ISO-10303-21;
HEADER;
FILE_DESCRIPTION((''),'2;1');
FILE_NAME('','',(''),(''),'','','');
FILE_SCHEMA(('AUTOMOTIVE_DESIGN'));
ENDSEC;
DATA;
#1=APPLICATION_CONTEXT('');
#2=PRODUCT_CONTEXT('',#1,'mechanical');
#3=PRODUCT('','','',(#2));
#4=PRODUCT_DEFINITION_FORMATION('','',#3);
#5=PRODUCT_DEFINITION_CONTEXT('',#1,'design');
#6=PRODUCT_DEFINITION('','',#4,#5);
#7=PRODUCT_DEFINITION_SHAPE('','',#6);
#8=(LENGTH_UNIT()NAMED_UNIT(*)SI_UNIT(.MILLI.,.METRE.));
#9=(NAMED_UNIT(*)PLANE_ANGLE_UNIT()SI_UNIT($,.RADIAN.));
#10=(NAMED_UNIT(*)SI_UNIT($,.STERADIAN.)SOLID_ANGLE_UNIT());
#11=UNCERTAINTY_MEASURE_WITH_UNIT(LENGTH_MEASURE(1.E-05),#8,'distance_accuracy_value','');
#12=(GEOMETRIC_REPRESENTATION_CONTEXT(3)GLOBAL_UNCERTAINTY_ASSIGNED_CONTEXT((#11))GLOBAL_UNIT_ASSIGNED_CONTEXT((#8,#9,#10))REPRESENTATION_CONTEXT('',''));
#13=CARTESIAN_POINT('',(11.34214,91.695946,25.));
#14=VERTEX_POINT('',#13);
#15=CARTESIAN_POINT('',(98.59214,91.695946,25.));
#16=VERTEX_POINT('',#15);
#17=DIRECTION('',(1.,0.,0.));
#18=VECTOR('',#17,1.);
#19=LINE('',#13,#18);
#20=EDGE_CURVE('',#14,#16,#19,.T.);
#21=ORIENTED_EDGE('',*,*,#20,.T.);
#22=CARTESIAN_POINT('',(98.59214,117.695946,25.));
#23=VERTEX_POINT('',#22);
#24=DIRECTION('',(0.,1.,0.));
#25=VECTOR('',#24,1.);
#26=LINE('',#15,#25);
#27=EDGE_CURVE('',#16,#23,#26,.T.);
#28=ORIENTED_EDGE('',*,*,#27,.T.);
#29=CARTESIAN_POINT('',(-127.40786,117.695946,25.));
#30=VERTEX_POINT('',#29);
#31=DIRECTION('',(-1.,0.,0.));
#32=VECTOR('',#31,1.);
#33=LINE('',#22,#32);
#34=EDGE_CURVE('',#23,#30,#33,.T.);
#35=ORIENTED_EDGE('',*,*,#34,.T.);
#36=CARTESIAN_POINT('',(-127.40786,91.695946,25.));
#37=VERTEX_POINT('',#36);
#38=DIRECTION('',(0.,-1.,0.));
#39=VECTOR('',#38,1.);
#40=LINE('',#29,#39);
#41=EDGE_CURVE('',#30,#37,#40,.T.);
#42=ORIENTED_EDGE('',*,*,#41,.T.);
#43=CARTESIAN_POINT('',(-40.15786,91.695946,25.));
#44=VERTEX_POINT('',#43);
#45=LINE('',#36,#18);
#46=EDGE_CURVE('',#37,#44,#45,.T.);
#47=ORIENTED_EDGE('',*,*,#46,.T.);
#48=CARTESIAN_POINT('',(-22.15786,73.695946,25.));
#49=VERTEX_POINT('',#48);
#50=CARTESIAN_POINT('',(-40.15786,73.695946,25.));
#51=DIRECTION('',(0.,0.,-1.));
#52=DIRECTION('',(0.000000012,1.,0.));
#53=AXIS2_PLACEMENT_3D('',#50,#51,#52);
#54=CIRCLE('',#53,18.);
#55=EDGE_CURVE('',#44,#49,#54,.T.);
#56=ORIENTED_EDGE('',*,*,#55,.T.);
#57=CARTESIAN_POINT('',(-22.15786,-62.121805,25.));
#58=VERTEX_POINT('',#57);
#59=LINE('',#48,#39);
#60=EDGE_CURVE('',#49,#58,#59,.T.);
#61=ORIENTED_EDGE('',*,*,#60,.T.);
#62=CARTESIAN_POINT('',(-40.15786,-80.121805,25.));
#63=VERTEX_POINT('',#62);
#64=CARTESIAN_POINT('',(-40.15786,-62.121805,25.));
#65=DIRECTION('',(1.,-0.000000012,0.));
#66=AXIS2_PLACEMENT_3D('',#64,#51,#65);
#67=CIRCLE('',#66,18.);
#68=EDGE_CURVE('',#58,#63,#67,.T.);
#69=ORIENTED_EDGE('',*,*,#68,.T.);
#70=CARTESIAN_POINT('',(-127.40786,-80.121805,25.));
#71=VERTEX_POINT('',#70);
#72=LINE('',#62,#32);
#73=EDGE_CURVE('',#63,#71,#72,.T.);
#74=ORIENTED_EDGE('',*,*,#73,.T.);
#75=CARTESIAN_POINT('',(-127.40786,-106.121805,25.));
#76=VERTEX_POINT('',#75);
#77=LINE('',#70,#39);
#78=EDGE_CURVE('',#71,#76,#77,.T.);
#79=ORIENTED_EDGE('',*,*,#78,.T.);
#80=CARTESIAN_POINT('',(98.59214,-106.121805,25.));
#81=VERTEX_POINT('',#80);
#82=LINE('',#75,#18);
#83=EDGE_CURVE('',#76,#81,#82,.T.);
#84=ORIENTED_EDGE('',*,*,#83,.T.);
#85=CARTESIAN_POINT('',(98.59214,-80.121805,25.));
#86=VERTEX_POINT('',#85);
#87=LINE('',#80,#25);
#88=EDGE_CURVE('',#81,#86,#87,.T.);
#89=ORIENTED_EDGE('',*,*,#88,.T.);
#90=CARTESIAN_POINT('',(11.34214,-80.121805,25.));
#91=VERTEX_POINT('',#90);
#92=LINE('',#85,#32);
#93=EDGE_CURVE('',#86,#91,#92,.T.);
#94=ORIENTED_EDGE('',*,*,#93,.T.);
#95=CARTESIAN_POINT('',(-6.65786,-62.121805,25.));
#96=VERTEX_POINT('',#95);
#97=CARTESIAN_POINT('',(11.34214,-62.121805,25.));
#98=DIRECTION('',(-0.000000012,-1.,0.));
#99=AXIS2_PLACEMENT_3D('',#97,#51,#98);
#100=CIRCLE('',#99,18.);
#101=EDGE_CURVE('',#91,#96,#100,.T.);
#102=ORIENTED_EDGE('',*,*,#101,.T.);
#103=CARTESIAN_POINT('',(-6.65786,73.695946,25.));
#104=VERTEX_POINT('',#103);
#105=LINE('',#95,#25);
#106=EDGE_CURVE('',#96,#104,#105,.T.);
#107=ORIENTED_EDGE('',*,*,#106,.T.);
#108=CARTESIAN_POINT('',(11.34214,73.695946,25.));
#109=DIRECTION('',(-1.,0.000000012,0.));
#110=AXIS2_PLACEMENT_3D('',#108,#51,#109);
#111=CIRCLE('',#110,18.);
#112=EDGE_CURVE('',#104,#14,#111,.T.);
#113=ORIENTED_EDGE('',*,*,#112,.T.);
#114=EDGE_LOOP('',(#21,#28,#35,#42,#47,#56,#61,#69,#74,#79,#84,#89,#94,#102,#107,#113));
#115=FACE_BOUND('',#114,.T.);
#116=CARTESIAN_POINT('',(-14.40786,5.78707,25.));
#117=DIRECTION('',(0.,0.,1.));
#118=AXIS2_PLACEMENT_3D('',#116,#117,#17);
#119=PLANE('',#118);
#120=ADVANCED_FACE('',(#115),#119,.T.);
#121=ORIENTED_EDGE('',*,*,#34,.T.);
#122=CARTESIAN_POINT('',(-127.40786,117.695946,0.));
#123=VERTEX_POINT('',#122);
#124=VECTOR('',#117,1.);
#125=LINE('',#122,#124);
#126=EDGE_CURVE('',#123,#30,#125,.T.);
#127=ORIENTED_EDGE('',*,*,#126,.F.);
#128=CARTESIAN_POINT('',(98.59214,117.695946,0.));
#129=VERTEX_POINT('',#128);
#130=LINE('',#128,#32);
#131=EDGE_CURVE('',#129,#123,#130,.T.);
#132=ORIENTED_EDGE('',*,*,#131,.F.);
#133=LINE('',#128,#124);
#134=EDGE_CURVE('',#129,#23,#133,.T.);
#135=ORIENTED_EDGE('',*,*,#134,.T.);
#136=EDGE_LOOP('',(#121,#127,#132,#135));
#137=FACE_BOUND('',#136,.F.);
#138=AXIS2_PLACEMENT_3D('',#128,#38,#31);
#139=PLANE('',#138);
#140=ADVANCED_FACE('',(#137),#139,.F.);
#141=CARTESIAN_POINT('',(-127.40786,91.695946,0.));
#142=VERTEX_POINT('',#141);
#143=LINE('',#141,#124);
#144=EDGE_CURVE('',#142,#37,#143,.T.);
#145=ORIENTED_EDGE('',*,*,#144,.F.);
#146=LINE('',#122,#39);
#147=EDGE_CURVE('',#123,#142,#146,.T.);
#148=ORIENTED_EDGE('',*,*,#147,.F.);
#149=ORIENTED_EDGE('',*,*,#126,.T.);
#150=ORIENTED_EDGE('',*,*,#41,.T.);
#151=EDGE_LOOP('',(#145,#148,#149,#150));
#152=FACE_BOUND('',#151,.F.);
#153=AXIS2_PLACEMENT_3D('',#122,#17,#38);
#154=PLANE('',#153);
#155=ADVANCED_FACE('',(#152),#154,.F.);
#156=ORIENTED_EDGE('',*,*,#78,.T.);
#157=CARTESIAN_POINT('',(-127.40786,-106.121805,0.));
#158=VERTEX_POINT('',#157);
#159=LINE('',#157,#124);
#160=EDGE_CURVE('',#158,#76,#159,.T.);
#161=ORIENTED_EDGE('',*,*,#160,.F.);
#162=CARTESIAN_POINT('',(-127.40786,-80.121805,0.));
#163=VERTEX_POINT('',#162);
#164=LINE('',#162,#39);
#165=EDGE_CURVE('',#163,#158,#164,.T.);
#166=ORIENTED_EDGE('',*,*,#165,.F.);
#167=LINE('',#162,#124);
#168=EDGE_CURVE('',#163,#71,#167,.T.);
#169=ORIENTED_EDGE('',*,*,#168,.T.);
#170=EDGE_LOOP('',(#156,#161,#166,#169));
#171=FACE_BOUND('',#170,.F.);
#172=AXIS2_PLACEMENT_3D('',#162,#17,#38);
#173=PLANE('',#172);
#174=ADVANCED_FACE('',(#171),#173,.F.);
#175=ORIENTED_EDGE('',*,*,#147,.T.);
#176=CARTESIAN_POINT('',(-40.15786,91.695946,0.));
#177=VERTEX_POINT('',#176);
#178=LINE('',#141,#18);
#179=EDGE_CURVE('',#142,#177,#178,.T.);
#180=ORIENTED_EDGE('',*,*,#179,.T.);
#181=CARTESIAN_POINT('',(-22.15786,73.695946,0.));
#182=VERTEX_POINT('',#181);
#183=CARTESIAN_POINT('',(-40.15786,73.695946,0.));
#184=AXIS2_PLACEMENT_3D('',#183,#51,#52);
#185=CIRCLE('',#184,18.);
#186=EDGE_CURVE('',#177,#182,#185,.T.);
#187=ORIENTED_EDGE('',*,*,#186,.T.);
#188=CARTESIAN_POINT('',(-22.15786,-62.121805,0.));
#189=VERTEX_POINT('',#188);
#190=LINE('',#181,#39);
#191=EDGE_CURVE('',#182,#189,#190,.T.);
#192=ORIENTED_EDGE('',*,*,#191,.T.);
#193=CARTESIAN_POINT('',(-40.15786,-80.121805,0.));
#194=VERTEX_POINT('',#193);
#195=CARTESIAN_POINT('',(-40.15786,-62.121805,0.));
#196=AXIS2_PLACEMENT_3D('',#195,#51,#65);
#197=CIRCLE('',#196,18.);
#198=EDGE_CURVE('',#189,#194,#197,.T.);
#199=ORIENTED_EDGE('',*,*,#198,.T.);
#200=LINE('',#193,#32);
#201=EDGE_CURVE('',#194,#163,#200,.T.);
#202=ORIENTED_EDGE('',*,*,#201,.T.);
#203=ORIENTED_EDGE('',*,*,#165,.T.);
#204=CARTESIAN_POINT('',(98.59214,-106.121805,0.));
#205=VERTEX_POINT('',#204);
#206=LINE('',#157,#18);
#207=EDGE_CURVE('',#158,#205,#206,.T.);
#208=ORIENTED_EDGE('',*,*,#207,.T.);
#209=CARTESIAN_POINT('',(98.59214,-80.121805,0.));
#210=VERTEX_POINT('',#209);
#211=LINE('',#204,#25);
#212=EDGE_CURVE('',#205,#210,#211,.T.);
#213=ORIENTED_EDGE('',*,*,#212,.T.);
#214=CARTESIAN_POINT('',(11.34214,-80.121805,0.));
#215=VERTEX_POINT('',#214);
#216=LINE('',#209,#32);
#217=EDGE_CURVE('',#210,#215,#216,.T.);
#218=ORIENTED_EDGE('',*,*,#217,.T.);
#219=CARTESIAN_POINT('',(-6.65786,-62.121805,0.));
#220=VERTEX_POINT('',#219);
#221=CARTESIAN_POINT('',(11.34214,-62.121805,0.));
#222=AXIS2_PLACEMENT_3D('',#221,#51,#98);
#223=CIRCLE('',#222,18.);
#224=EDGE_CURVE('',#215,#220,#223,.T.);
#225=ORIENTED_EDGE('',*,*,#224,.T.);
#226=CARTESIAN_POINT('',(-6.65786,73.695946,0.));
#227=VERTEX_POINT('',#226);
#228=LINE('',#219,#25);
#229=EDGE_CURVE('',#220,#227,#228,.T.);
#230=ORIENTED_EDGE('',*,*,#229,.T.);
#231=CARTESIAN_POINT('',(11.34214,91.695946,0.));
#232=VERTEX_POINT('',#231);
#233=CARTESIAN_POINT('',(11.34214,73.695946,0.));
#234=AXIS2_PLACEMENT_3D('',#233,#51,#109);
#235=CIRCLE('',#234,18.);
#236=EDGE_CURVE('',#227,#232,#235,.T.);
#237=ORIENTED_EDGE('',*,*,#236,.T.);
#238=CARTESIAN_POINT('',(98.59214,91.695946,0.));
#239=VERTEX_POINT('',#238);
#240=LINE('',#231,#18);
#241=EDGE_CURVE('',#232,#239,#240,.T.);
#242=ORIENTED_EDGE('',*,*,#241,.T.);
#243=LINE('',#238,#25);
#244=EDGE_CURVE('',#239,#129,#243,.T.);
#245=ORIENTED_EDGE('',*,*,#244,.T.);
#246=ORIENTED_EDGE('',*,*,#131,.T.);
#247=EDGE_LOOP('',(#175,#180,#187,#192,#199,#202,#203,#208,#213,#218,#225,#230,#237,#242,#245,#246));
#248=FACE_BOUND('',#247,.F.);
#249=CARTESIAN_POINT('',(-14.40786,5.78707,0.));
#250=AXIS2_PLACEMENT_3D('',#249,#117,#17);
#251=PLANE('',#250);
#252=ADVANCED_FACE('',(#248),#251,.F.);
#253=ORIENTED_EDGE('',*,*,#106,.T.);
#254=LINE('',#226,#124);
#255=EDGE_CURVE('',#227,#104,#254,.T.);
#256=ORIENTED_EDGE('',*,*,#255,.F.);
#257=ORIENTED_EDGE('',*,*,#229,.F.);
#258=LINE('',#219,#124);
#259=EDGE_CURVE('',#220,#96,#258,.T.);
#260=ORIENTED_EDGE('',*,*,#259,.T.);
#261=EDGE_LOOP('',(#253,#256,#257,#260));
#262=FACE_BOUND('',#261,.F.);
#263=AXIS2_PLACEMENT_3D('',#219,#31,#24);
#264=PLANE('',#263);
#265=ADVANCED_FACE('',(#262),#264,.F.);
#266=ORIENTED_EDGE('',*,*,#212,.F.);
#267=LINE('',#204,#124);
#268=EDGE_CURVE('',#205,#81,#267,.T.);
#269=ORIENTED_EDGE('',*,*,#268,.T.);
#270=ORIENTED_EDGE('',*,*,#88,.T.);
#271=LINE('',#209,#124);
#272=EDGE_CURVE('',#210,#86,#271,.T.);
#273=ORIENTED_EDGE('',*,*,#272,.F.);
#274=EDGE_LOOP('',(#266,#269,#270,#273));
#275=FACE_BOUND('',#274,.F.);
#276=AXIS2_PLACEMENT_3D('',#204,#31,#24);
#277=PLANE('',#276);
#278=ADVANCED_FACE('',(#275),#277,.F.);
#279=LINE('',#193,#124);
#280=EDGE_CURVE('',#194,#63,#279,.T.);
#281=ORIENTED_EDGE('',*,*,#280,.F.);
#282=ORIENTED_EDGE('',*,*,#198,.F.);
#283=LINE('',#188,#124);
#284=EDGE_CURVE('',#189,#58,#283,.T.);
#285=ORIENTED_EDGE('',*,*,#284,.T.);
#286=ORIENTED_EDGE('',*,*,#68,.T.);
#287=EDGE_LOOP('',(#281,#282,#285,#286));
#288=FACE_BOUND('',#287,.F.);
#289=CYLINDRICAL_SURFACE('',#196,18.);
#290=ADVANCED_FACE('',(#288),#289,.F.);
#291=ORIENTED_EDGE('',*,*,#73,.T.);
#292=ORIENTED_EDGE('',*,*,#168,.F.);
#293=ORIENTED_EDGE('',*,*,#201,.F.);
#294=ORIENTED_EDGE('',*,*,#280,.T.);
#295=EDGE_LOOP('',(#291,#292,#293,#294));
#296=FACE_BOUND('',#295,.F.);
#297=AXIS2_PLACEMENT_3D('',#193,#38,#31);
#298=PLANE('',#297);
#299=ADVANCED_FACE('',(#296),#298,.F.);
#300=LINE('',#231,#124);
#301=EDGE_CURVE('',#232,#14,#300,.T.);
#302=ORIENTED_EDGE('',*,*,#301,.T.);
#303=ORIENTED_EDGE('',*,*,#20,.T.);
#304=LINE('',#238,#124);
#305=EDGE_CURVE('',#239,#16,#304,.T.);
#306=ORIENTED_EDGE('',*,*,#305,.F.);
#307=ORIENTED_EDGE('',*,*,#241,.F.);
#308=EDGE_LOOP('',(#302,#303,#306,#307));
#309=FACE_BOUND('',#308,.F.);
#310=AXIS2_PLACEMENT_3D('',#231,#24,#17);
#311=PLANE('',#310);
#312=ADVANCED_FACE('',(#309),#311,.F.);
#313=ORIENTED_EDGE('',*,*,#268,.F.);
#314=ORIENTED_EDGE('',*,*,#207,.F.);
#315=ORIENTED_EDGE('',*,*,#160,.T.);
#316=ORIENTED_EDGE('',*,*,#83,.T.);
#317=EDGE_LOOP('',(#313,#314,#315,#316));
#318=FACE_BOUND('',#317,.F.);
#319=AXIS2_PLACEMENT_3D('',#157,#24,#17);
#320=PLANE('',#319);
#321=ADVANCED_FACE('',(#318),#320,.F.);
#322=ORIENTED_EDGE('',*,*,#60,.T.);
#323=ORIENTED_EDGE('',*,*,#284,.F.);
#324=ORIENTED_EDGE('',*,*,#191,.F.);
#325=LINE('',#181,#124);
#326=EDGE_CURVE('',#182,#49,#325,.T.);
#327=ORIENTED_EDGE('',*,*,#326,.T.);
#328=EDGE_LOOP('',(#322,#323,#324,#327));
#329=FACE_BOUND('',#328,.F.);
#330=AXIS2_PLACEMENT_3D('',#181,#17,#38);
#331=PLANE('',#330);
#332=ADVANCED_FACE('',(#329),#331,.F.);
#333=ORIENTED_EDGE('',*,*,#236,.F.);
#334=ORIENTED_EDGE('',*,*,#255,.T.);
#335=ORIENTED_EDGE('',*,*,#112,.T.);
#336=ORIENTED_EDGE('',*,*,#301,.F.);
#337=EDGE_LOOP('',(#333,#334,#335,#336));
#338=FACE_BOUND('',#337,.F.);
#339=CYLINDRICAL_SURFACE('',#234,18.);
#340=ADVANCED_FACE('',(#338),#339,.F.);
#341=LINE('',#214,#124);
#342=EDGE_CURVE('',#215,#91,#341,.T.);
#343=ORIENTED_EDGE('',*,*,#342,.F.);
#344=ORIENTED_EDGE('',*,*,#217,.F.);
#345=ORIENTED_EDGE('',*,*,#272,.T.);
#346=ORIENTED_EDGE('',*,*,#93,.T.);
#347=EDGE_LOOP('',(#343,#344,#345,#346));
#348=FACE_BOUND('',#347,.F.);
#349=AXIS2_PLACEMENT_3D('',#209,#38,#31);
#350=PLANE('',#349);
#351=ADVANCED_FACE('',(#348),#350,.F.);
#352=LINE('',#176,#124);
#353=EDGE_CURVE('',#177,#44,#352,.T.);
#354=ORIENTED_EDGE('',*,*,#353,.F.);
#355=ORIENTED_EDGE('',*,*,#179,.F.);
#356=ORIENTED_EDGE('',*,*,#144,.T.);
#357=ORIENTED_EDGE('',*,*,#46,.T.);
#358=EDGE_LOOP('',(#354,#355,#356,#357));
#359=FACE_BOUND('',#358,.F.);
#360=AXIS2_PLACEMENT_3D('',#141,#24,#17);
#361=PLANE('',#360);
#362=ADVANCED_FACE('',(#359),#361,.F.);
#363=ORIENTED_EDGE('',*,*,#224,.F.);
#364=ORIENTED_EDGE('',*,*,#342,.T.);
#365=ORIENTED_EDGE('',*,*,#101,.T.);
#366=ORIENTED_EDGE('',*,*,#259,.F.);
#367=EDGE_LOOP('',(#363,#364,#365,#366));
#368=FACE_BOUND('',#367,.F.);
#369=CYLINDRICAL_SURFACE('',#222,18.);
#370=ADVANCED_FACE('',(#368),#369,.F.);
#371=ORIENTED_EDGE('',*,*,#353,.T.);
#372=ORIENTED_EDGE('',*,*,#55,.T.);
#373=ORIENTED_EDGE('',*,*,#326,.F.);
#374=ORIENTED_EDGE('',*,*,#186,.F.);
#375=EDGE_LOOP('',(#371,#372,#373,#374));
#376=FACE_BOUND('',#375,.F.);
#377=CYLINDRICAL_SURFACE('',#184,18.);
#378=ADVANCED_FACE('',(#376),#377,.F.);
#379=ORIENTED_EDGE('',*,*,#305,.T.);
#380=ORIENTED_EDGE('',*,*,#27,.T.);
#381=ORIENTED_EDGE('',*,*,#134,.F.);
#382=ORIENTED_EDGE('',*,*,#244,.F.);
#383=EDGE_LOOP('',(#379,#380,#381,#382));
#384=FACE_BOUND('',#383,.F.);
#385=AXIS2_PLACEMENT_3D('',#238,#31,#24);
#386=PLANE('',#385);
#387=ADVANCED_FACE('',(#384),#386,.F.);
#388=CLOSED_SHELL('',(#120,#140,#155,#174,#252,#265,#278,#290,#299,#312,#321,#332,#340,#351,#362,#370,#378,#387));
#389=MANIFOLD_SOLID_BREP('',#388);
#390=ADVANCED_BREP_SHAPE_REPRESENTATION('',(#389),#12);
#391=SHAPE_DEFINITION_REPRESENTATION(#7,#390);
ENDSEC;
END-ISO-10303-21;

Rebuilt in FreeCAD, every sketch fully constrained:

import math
import FreeCAD as App
import Part
import Sketcher

V = App.Vector
Q = App.Units.Quantity

doc = App.newDocument("Part")
body = doc.addObject("PartDesign::Body", "Body")

sketch1 = body.newObject("Sketcher::SketchObject", "Sketch")
sketch1.AttachmentSupport = (doc.getObject("XY_Plane"), [""])
sketch1.MapMode = "FlatFace"
sketch1.addGeometry(Part.LineSegment(V(98.59214, 117.695946, 0), V(-127.40786, 117.695946, 0)), False)
sketch1.addGeometry(Part.LineSegment(V(-127.40786, 117.695946, 0), V(-127.40786, 91.695946, 0)), False)
sketch1.addGeometry(Part.LineSegment(V(-127.40786, 91.695946, 0), V(-40.15786, 91.695946, 0)), False)
sketch1.addGeometry(Part.ArcOfCircle(Part.Circle(V(-40.15786, 73.695946, 0), V(0, 0, 1), 18), math.radians(0.000001), math.radians(89.999999)), False)
sketch1.addGeometry(Part.LineSegment(V(-22.15786, 73.695946, 0), V(-22.15786, -62.121805, 0)), False)
sketch1.addGeometry(Part.ArcOfCircle(Part.Circle(V(-40.15786, -62.121805, 0), V(0, 0, 1), 18), math.radians(-89.999999), math.radians(-0.000001)), False)
sketch1.addGeometry(Part.LineSegment(V(-40.15786, -80.121805, 0), V(-127.40786, -80.121805, 0)), False)
sketch1.addGeometry(Part.LineSegment(V(-127.40786, -80.121805, 0), V(-127.40786, -106.121805, 0)), False)
sketch1.addGeometry(Part.LineSegment(V(-127.40786, -106.121805, 0), V(98.59214, -106.121805, 0)), False)
sketch1.addGeometry(Part.LineSegment(V(98.59214, -106.121805, 0), V(98.59214, -80.121805, 0)), False)
sketch1.addGeometry(Part.LineSegment(V(98.59214, -80.121805, 0), V(11.34214, -80.121805, 0)), False)
sketch1.addGeometry(Part.ArcOfCircle(Part.Circle(V(11.34214, -62.121805, 0), V(0, 0, 1), 18), math.radians(-179.999999), math.radians(-90.000001)), False)
sketch1.addGeometry(Part.LineSegment(V(-6.65786, -62.121805, 0), V(-6.65786, 73.695946, 0)), False)
sketch1.addGeometry(Part.ArcOfCircle(Part.Circle(V(11.34214, 73.695946, 0), V(0, 0, 1), 18), math.radians(90.000001), math.radians(179.999999)), False)
sketch1.addGeometry(Part.LineSegment(V(11.34214, 91.695946, 0), V(98.59214, 91.695946, 0)), False)
sketch1.addGeometry(Part.LineSegment(V(98.59214, 91.695946, 0), V(98.59214, 117.695946, 0)), False)
sketch1.addConstraint(Sketcher.Constraint("Coincident", 0, 2, 1, 1))
sketch1.addConstraint(Sketcher.Constraint("Coincident", 1, 2, 2, 1))
sketch1.addConstraint(Sketcher.Constraint("Tangent", 2, 2, 3, 2))
sketch1.addConstraint(Sketcher.Constraint("Tangent", 3, 1, 4, 1))
sketch1.addConstraint(Sketcher.Constraint("Tangent", 4, 2, 5, 2))
sketch1.addConstraint(Sketcher.Constraint("Tangent", 5, 1, 6, 1))
sketch1.addConstraint(Sketcher.Constraint("Coincident", 6, 2, 7, 1))
sketch1.addConstraint(Sketcher.Constraint("Coincident", 7, 2, 8, 1))
sketch1.addConstraint(Sketcher.Constraint("Coincident", 8, 2, 9, 1))
sketch1.addConstraint(Sketcher.Constraint("Coincident", 9, 2, 10, 1))
sketch1.addConstraint(Sketcher.Constraint("Tangent", 10, 2, 11, 2))
sketch1.addConstraint(Sketcher.Constraint("Tangent", 11, 1, 12, 1))
sketch1.addConstraint(Sketcher.Constraint("Tangent", 12, 2, 13, 2))
sketch1.addConstraint(Sketcher.Constraint("Tangent", 13, 1, 14, 1))
sketch1.addConstraint(Sketcher.Constraint("Coincident", 14, 2, 15, 1))
sketch1.addConstraint(Sketcher.Constraint("Coincident", 15, 2, 0, 1))
sketch1.addConstraint(Sketcher.Constraint("Horizontal", 0))
sketch1.addConstraint(Sketcher.Constraint("Vertical", 1))
sketch1.addConstraint(Sketcher.Constraint("Horizontal", 2))
sketch1.addConstraint(Sketcher.Constraint("Vertical", 4))
sketch1.addConstraint(Sketcher.Constraint("Horizontal", 6))
sketch1.addConstraint(Sketcher.Constraint("Vertical", 7))
sketch1.addConstraint(Sketcher.Constraint("Horizontal", 8))
sketch1.addConstraint(Sketcher.Constraint("Vertical", 9))
sketch1.addConstraint(Sketcher.Constraint("Horizontal", 10))
sketch1.addConstraint(Sketcher.Constraint("Vertical", 12))
sketch1.addConstraint(Sketcher.Constraint("Horizontal", 14))
sketch1.addConstraint(Sketcher.Constraint("Vertical", 15))
sketch1.addConstraint(Sketcher.Constraint("Equal", 3, 5))
sketch1.addConstraint(Sketcher.Constraint("Equal", 5, 11))
sketch1.addConstraint(Sketcher.Constraint("Equal", 11, 13))
sketch1.addConstraint(Sketcher.Constraint("Horizontal", 5, 3, 11, 3))
sketch1.addConstraint(Sketcher.Constraint("Horizontal", 3, 3, 13, 3))
sketch1.addConstraint(Sketcher.Constraint("Vertical", 1, 2, 6, 2))
sketch1.addConstraint(Sketcher.Constraint("Vertical", 9, 2, 14, 2))
sketch1.addConstraint(Sketcher.Constraint("Equal", 6, 10))
sketch1.addConstraint(Sketcher.Constraint("Equal", 1, 7))
sketch1.addConstraint(Sketcher.Constraint("Radius", 3, Q("18 mm")))
sketch1.addConstraint(Sketcher.Constraint("DistanceX", 0, 2, 0, 1, Q("226 mm")))
sketch1.addConstraint(Sketcher.Constraint("DistanceY", 1, 2, 1, 1, Q("26 mm")))
sketch1.addConstraint(Sketcher.Constraint("DistanceX", 2, 1, 2, 2, Q("87.25 mm")))
sketch1.addConstraint(Sketcher.Constraint("DistanceY", 4, 2, 4, 1, Q("135.817751 mm")))
sketch1.addConstraint(Sketcher.Constraint("DistanceX", 3, 3, -1, 1, Q("40.15786 mm")))
sketch1.addConstraint(Sketcher.Constraint("DistanceY", -1, 1, 3, 3, Q("73.695946 mm")))
pad1 = body.newObject("PartDesign::Pad", "Pad")
pad1.Profile = sketch1
pad1.Length = 25

doc.recompute()
